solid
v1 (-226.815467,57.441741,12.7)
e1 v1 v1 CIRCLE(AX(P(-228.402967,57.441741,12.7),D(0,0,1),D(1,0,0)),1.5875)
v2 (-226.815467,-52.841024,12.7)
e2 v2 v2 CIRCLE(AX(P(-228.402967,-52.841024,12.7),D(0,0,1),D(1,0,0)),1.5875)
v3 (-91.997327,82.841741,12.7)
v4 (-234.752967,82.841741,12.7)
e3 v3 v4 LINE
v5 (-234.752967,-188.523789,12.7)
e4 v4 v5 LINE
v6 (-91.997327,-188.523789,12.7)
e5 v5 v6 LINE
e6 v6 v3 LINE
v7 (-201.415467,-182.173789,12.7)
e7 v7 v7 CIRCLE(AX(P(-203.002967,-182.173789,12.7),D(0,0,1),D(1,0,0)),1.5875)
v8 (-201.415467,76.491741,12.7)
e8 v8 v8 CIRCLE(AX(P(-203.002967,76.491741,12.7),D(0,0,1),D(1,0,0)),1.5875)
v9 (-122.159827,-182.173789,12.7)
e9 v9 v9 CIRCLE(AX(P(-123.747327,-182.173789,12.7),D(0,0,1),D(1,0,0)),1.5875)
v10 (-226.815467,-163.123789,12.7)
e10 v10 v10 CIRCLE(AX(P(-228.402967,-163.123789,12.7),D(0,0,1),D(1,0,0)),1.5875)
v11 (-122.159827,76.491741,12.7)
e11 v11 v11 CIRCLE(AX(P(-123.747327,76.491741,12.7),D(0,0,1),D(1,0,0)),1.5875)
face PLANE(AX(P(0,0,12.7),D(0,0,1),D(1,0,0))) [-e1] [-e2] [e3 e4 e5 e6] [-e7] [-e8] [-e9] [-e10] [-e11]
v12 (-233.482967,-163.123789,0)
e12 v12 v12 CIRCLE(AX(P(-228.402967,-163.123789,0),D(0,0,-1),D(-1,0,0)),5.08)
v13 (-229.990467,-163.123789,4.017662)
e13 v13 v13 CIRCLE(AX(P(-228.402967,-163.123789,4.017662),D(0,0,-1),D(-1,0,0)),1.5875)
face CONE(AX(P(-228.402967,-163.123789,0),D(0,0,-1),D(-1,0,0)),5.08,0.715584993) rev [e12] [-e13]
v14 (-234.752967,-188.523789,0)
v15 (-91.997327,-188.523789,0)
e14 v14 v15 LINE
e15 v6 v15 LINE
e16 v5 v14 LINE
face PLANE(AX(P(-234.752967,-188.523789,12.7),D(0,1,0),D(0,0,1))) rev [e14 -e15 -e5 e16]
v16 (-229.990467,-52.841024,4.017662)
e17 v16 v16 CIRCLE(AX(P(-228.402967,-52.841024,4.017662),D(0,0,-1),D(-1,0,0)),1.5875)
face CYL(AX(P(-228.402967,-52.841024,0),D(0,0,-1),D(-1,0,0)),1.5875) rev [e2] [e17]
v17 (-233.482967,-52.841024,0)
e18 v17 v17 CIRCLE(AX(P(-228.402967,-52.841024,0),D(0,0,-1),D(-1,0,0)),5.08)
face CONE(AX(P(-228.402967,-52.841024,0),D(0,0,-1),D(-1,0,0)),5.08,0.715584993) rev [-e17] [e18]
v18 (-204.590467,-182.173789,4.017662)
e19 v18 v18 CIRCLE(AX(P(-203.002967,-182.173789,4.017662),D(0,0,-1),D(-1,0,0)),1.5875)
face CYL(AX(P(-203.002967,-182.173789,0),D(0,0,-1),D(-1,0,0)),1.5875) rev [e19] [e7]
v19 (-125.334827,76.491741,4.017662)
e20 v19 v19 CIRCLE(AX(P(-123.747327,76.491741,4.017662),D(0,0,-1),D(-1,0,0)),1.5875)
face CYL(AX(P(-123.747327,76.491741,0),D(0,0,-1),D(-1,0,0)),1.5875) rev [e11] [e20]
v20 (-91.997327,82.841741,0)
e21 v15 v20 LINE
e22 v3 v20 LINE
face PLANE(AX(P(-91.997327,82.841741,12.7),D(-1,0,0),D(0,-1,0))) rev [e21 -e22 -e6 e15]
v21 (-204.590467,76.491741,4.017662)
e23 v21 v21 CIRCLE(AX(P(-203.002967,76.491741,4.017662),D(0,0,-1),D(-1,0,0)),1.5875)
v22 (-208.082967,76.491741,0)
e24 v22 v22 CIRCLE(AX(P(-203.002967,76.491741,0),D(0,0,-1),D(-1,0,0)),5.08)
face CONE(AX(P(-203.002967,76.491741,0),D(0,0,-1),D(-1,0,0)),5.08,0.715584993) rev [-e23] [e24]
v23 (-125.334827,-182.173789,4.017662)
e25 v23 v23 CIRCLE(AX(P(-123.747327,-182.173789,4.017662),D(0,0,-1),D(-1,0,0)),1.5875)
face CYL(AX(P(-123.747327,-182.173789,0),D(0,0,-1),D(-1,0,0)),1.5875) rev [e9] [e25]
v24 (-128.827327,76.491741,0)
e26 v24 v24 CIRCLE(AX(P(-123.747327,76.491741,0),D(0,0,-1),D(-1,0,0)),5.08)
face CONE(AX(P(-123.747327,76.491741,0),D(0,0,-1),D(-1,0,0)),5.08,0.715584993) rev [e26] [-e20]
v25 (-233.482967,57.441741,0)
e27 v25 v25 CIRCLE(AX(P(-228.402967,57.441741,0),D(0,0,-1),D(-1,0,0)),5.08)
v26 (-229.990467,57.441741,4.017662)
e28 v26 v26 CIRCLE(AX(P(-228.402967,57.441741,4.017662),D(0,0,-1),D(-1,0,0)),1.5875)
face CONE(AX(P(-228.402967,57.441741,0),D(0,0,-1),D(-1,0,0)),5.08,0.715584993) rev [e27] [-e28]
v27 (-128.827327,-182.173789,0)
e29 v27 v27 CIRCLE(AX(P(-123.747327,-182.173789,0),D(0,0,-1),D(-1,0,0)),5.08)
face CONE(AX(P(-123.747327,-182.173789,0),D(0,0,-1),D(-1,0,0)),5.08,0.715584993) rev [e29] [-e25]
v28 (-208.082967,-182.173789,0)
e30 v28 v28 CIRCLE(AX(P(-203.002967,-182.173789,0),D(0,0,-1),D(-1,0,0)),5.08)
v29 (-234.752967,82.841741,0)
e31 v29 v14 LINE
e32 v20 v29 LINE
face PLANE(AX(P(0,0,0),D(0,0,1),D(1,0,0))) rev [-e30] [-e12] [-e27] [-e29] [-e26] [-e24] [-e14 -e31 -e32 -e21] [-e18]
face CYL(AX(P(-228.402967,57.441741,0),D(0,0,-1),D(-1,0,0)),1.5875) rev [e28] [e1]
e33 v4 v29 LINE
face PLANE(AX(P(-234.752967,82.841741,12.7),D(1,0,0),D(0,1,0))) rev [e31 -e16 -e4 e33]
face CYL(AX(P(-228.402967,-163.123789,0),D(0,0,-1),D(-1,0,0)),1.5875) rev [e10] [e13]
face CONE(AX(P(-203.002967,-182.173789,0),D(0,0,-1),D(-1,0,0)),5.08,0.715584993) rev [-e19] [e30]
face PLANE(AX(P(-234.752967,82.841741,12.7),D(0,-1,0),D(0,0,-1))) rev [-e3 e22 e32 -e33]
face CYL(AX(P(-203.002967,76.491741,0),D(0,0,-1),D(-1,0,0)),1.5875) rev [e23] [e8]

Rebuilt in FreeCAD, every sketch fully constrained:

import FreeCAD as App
import Part
import Sketcher

V = App.Vector
Q = App.Units.Quantity


def add_polygon(sketch, points):
    """Adds a closed chain of lines whose ends are joined by coincident constraints."""
    first, n = sketch.GeometryCount, len(points)
    for a, b in zip(points, points[1:] + points[:1]):
        sketch.addGeometry(Part.LineSegment(App.Vector(*a, 0), App.Vector(*b, 0)), False)
    for i in range(n):
        sketch.addConstraint(Sketcher.Constraint("Coincident", first + i, 2, first + (i + 1) % n, 1))

doc = App.newDocument("Part")
body = doc.addObject("PartDesign::Body", "Body")

# Sketch on XY plane
sketch1 = doc.addObject("Sketcher::SketchObject", "Sketch")
body.addObject(sketch1)
sketch1.AttachmentSupport = (doc.XY_Plane, [""])
sketch1.MapMode = "FlatFace"
add_polygon(sketch1, [(-235, 83), (-235, -189), (-92, -189), (-92, 83)])  # lines 0-3
sketch1.addConstraint(Sketcher.Constraint("Vertical", 0))
sketch1.addConstraint(Sketcher.Constraint("Horizontal", 1))
sketch1.addConstraint(Sketcher.Constraint("Vertical", 2))
sketch1.addConstraint(Sketcher.Constraint("Horizontal", 3))
sketch1.addConstraint(Sketcher.Constraint("DistanceX", 1, 1, 1, 2, Q("142.75564 mm")))
sketch1.addConstraint(Sketcher.Constraint("DistanceY", 0, 2, 0, 1, Q("271.36553 mm")))
sketch1.addConstraint(Sketcher.Constraint("DistanceY", 0, 2, -1, 1, Q("188.523789 mm")))
sketch1.addConstraint(Sketcher.Constraint("DistanceX", 0, 2, -1, 1, Q("234.752967 mm")))
pad1 = doc.addObject("PartDesign::Pad", "Pad")
body.addObject(pad1)
pad1.Profile = sketch1
pad1.Length = Q("0.5 in")

# Sketch on XY plane
sketch2 = doc.addObject("Sketcher::SketchObject", "Sketch001")
body.addObject(sketch2)
sketch2.AttachmentSupport = (doc.XY_Plane, [""])
sketch2.MapMode = "FlatFace"
sketch2.addGeometry(Part.Circle(V(-203, -182.2, 0), V(0, 0, 1), 1.6), False)
sketch2.addGeometry(Part.Circle(V(-203, 76.5, 0), V(0, 0, 1), 1.6), False)
sketch2.addGeometry(Part.Circle(V(-123.7, 76.5, 0), V(0, 0, 1), 1.6), False)
sketch2.addGeometry(Part.Circle(V(-228.4, 57.4, 0), V(0, 0, 1), 1.6), False)
sketch2.addGeometry(Part.Circle(V(-228.4, -52.8, 0), V(0, 0, 1), 1.6), False)
sketch2.addGeometry(Part.Circle(V(-228.4, -163.1, 0), V(0, 0, 1), 1.6), False)
sketch2.addGeometry(Part.Circle(V(-123.7, -182.2, 0), V(0, 0, 1), 1.6), False)
sketch2.addConstraint(Sketcher.Constraint("Equal", 0, 1))
sketch2.addConstraint(Sketcher.Constraint("Equal", 1, 2))
sketch2.addConstraint(Sketcher.Constraint("Equal", 2, 3))
sketch2.addConstraint(Sketcher.Constraint("Equal", 3, 4))
sketch2.addConstraint(Sketcher.Constraint("Equal", 4, 5))
sketch2.addConstraint(Sketcher.Constraint("Equal", 5, 6))
sketch2.addConstraint(Sketcher.Constraint("Horizontal", 1, 3, 2, 3))
sketch2.addConstraint(Sketcher.Constraint("Horizontal", 0, 3, 6, 3))
sketch2.addConstraint(Sketcher.Constraint("Vertical", 0, 3, 1, 3))
sketch2.addConstraint(Sketcher.Constraint("Vertical", 3, 3, 4, 3))
sketch2.addConstraint(Sketcher.Constraint("Vertical", 4, 3, 5, 3))
sketch2.addConstraint(Sketcher.Constraint("Vertical", 2, 3, 6, 3))
sketch2.addConstraint(Sketcher.Constraint("Diameter", 0, Q("0.125 in")))
sketch2.addConstraint(Sketcher.Constraint("DistanceX", 3, 3, 1, 3, Q("1 in")))
sketch2.addConstraint(Sketcher.Constraint("DistanceY", 3, 3, 1, 3, Q("0.75 in")))
sketch2.addConstraint(Sketcher.Constraint("DistanceY", 0, 3, 5, 3, Q("0.75 in")))
sketch2.addConstraint(Sketcher.Constraint("DistanceY", 0, 3, -1, 1, Q("182.173789 mm")))
sketch2.addConstraint(Sketcher.Constraint("DistanceY", -1, 1, 1, 3, Q("76.491741 mm")))
sketch2.addConstraint(Sketcher.Constraint("DistanceX", 1, 3, 2, 3, Q("79.25564 mm")))
sketch2.addConstraint(Sketcher.Constraint("DistanceX", 0, 3, -1, 1, Q("203.002967 mm")))
sketch2.addConstraint(Sketcher.Constraint("DistanceY", 4, 3, -1, 1, Q("52.841024 mm")))
doc.recompute()
hole = doc.addObject("PartDesign::Hole", "Hole")
body.addObject(hole)
hole.Profile = sketch2
hole.ThreadType = "None"
hole.Diameter = Q("0.125 in")
hole.DepthType = "Dimension"
hole.Depth = Q("1.25 in")
hole.DrillPoint = "Angled"
hole.DrillPointAngle = 118
hole.HoleCutType = "Countersink"
hole.HoleCutDiameter = Q("0.4 in")
hole.HoleCutCountersinkAngle = 82
hole.Reversed = True

doc.recompute()
